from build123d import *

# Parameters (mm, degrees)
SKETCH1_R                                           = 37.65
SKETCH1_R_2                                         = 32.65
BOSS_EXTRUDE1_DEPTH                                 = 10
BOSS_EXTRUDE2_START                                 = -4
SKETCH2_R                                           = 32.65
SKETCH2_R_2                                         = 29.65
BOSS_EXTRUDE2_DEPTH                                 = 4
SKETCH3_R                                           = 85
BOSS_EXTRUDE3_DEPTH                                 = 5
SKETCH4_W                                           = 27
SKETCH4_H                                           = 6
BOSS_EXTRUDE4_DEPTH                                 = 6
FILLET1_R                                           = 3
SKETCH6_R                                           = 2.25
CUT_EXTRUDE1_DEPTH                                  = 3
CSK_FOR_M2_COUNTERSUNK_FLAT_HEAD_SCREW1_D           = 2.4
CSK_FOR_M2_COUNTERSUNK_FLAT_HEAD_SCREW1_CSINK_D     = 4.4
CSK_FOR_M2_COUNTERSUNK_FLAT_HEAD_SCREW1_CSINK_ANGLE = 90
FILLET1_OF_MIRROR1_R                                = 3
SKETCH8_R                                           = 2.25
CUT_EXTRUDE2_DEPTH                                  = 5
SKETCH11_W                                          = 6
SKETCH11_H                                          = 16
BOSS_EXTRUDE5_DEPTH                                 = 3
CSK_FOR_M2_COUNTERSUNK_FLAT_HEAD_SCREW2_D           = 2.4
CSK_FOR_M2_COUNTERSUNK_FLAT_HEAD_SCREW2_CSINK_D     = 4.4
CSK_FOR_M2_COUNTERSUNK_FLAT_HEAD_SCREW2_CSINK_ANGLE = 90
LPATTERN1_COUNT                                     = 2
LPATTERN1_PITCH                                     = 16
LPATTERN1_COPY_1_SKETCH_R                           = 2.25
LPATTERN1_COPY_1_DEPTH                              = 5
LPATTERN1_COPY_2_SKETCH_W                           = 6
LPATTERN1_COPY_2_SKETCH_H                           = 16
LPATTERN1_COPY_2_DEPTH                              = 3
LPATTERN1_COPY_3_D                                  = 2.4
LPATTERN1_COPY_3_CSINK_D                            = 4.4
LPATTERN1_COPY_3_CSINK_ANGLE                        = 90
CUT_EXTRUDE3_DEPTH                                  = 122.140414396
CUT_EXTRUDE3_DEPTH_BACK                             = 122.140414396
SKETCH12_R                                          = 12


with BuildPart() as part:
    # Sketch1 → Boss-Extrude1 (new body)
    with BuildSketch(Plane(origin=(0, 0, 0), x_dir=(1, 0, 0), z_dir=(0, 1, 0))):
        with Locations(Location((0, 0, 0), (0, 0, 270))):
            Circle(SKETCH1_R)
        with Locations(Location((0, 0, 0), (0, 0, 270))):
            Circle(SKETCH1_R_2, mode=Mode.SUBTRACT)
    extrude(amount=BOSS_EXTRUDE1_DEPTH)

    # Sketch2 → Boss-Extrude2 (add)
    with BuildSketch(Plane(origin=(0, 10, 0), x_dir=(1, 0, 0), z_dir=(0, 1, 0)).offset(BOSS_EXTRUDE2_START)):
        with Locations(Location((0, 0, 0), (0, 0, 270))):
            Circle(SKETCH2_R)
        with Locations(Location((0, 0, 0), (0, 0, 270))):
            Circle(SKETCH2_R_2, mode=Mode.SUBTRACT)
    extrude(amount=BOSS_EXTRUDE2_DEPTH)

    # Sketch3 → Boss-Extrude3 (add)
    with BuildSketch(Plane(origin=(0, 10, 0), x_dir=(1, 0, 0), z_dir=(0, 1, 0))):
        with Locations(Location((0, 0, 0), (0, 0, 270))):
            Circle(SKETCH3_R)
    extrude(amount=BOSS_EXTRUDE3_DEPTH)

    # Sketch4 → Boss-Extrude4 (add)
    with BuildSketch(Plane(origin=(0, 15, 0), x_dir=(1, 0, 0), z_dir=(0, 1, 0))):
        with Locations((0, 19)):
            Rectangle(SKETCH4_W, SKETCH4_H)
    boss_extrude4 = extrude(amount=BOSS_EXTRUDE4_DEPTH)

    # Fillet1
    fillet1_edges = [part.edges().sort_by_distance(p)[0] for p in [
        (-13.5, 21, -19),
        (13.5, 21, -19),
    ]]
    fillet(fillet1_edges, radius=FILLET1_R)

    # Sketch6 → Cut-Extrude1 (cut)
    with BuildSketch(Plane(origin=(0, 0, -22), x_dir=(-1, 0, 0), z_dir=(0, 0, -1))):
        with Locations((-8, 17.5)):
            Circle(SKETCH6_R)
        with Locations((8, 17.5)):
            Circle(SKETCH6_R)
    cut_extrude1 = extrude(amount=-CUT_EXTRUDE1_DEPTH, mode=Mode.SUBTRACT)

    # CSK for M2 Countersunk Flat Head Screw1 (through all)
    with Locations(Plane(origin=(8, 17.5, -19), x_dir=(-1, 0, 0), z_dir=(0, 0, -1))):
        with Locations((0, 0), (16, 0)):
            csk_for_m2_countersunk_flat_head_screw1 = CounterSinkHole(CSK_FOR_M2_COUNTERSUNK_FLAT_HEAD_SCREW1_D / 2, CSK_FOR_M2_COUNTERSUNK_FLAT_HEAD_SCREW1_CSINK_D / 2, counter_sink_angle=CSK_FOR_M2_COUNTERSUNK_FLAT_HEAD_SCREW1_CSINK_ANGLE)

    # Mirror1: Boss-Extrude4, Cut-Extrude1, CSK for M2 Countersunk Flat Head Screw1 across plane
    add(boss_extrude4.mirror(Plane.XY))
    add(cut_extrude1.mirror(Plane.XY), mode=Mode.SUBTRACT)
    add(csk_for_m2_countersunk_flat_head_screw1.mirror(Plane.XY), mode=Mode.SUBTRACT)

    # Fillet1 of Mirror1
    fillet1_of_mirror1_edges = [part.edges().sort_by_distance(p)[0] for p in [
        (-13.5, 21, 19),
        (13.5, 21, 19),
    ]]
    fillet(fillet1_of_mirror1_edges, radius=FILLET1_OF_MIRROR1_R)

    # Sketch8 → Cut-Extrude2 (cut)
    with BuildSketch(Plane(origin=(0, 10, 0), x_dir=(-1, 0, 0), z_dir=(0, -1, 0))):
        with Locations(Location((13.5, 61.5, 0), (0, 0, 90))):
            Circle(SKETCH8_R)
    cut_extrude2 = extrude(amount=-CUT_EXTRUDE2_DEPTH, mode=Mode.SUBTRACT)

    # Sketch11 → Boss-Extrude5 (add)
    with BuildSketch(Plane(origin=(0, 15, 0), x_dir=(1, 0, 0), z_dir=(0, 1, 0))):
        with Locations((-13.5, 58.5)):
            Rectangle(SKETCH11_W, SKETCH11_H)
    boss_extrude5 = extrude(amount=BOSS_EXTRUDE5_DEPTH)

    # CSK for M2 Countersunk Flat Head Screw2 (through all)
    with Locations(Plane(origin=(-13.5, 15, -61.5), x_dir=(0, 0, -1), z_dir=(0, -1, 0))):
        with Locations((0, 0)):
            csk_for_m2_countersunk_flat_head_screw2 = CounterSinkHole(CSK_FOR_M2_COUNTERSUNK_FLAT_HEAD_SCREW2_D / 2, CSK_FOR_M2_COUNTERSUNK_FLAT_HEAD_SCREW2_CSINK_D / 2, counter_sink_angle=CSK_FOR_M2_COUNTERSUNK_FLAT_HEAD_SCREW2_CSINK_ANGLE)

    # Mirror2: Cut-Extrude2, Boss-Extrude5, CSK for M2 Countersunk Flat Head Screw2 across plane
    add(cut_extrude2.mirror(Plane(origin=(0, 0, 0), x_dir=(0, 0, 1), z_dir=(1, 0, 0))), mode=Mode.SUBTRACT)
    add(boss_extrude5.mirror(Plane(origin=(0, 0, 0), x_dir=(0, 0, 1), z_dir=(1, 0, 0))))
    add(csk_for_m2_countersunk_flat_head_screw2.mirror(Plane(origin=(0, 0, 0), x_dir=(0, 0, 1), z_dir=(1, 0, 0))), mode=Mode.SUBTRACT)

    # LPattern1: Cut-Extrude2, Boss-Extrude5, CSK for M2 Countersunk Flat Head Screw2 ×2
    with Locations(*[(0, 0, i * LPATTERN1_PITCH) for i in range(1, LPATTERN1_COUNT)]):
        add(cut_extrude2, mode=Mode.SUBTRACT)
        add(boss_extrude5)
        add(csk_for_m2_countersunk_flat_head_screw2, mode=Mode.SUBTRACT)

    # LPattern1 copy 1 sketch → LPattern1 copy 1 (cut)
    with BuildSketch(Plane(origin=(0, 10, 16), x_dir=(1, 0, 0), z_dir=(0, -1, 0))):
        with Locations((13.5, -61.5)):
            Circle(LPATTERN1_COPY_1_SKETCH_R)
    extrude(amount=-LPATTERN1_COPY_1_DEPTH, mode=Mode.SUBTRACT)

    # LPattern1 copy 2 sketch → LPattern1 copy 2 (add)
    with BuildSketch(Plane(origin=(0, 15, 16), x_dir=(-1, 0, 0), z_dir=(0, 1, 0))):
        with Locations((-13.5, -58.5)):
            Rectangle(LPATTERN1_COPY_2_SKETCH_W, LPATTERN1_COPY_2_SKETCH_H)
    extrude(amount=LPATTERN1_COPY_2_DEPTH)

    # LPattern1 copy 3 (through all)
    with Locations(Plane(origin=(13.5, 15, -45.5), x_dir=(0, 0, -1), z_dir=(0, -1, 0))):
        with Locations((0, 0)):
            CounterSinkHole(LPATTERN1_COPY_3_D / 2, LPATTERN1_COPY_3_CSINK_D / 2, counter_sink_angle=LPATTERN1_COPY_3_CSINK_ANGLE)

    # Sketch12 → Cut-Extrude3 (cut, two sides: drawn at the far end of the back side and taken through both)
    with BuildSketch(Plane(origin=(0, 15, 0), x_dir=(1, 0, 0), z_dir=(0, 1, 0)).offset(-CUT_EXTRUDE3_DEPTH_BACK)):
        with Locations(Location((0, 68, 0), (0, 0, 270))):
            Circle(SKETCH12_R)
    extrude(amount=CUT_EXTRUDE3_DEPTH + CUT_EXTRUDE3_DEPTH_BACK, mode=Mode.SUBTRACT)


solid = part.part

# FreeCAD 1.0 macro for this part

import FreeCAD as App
import Part
import Sketcher


def edges_at(feature, points):
    """Names of the edges that pass closest to the given points."""
    edges = feature.Shape.Edges
    near = lambda p: min(range(len(edges)), key=lambda i: edges[i].distToShape(Part.Vertex(*p))[0])
    return sorted({f"Edge{near(p) + 1}" for p in points})


def add_polygon(sketch, points):
    """Adds a closed chain of lines whose ends are joined by coincident constraints."""
    first, n = sketch.GeometryCount, len(points)
    for a, b in zip(points, points[1:] + points[:1]):
        sketch.addGeometry(Part.LineSegment(App.Vector(*a, 0), App.Vector(*b, 0)), False)
    for i in range(n):
        sketch.addConstraint(Sketcher.Constraint("Coincident", first + i, 2, first + (i + 1) % n, 1))

doc = App.newDocument("Part")
body = doc.addObject("PartDesign::Body", "Body")

# Sketch on XZ plane
sketch1 = body.newObject("Sketcher::SketchObject", "Sketch")
sketch1.AttachmentSupport = (doc.getObject("XZ_Plane"), [""])
sketch1.MapMode = "FlatFace"
sketch1.addGeometry(Part.Circle(App.Vector(0, 0, 0), App.Vector(0, 0, 1), 38), False)
sketch1.addGeometry(Part.Circle(App.Vector(0, 0, 0), App.Vector(0, 0, 1), 33), False)
sketch1.addConstraint(Sketcher.Constraint("Coincident", 0, 3, -1, 1))
sketch1.addConstraint(Sketcher.Constraint("Coincident", 1, 3, -1, 1))
sketch1.addConstraint(Sketcher.Constraint("Diameter", 0, 75.3))
sketch1.addConstraint(Sketcher.Constraint("Diameter", 1, 65.3))
pad1 = body.newObject("PartDesign::Pad", "Pad")
pad1.Profile = sketch1
pad1.Length = 10
pad1.Reversed = True

# Sketch on XZ plane
sketch2 = body.newObject("Sketcher::SketchObject", "Sketch001")
sketch2.AttachmentSupport = (doc.getObject("XZ_Plane"), [""])
sketch2.MapMode = "FlatFace"
sketch2.AttachmentOffset = App.Placement(App.Vector(0, 0, -6), App.Rotation())
sketch2.addGeometry(Part.Circle(App.Vector(0, 0, 0), App.Vector(0, 0, 1), 33), False)
sketch2.addGeometry(Part.Circle(App.Vector(0, 0, 0), App.Vector(0, 0, 1), 30), False)
sketch2.addConstraint(Sketcher.Constraint("Coincident", 0, 3, -1, 1))
sketch2.addConstraint(Sketcher.Constraint("Coincident", 1, 3, -1, 1))
sketch2.addConstraint(Sketcher.Constraint("Diameter", 0, 65.3))
sketch2.addConstraint(Sketcher.Constraint("Diameter", 1, 59.3))
pad2 = body.newObject("PartDesign::Pad", "Pad001")
pad2.Profile = sketch2
pad2.Length = 4
pad2.Reversed = True

# Sketch on XZ plane
sketch3 = body.newObject("Sketcher::SketchObject", "Sketch002")
sketch3.AttachmentSupport = (doc.getObject("XZ_Plane"), [""])
sketch3.MapMode = "FlatFace"
sketch3.AttachmentOffset = App.Placement(App.Vector(0, 0, -10), App.Rotation())
sketch3.addGeometry(Part.Circle(App.Vector(0, 0, 0), App.Vector(0, 0, 1), 85), False)
sketch3.addConstraint(Sketcher.Constraint("Coincident", 0, 3, -1, 1))
sketch3.addConstraint(Sketcher.Constraint("Diameter", 0, 170.0))
pad3 = body.newObject("PartDesign::Pad", "Pad002")
pad3.Profile = sketch3
pad3.Length = 5
pad3.Reversed = True

# Sketch on XZ plane
sketch4 = body.newObject("Sketcher::SketchObject", "Sketch003")
sketch4.AttachmentSupport = (doc.getObject("XZ_Plane"), [""])
sketch4.MapMode = "FlatFace"
sketch4.AttachmentOffset = App.Placement(App.Vector(0, 0, -15), App.Rotation())
add_polygon(sketch4, [(-14, -22), (-14, -16), (14, -16), (14, -22)])  # lines 0-3
sketch4.addConstraint(Sketcher.Constraint("Vertical", 0))
sketch4.addConstraint(Sketcher.Constraint("Horizontal", 1))
sketch4.addConstraint(Sketcher.Constraint("Vertical", 2))
sketch4.addConstraint(Sketcher.Constraint("Horizontal", 3))
sketch4.addConstraint(Sketcher.Constraint("DistanceX", 1, 1, 1, 2, 27.0))
sketch4.addConstraint(Sketcher.Constraint("DistanceY", 0, 1, 0, 2, 6.0))
sketch4.addConstraint(Sketcher.Constraint("DistanceY", 0, 2, -1, 1, 16.0))
sketch4.addConstraint(Sketcher.Constraint("DistanceX", 0, 2, -1, 1, 13.5))
pad4 = body.newObject("PartDesign::Pad", "Pad003")
pad4.Profile = sketch4
pad4.Length = 6
pad4.Reversed = True
doc.recompute()

fillet = body.newObject("PartDesign::Fillet", "Fillet")
fillet.Base = (pad4, edges_at(pad4, [(-13.5, 21, -19), (13.5, 21, -19)]))
fillet.Radius = 3

# Sketch on XY plane
sketch5 = body.newObject("Sketcher::SketchObject", "Sketch004")
sketch5.AttachmentSupport = (doc.getObject("XY_Plane"), [""])
sketch5.MapMode = "FlatFace"
sketch5.AttachmentOffset = App.Placement(App.Vector(0, 0, -22), App.Rotation())
sketch5.addGeometry(Part.Circle(App.Vector(8, 17.5, 0), App.Vector(0, 0, 1), 2.2), False)
sketch5.addGeometry(Part.Circle(App.Vector(-8, 17.5, 0), App.Vector(0, 0, 1), 2.2), False)
sketch5.addConstraint(Sketcher.Constraint("Equal", 0, 1))
sketch5.addConstraint(Sketcher.Constraint("Symmetric", 0, 3, 1, 3, -2))
sketch5.addConstraint(Sketcher.Constraint("Diameter", 0, 4.5))
sketch5.addConstraint(Sketcher.Constraint("DistanceX", -1, 1, 0, 3, 8.0))
sketch5.addConstraint(Sketcher.Constraint("DistanceY", -1, 1, 0, 3, 17.5))
pocket1 = body.newObject("PartDesign::Pocket", "Pocket")
pocket1.Profile = sketch5
pocket1.Length = 3
pocket1.Reversed = True

# Sketch on XY plane
sketch6 = body.newObject("Sketcher::SketchObject", "Sketch005")
sketch6.AttachmentSupport = (doc.getObject("XY_Plane"), [""])
sketch6.MapMode = "FlatFace"
sketch6.AttachmentOffset = App.Placement(App.Vector(0, 0, -19), App.Rotation())
sketch6.addGeometry(Part.Circle(App.Vector(8, 17.5, 0), App.Vector(0, 0, 1), 1.2), False)
sketch6.addGeometry(Part.Circle(App.Vector(-8, 17.5, 0), App.Vector(0, 0, 1), 1.2), False)
sketch6.addConstraint(Sketcher.Constraint("Equal", 0, 1))
sketch6.addConstraint(Sketcher.Constraint("Symmetric", 0, 3, 1, 3, -2))
sketch6.addConstraint(Sketcher.Constraint("Diameter", 0, 2.4))
sketch6.addConstraint(Sketcher.Constraint("DistanceX", -1, 1, 0, 3, 8.0))
sketch6.addConstraint(Sketcher.Constraint("DistanceY", -1, 1, 0, 3, 17.5))
doc.recompute()
hole = body.newObject("PartDesign::Hole", "Hole")
hole.Profile = sketch6
hole.ThreadType = "None"
hole.Diameter = 2.4
hole.DepthType = "ThroughAll"
hole.HoleCutType = "Countersink"
hole.HoleCutDiameter = 4.4
hole.HoleCutCountersinkAngle = 90
hole.Reversed = True
doc.recompute()

mirrored = body.newObject("PartDesign::Mirrored", "Mirrored")
mirrored.Originals = [pad4, pocket1, hole]
mirrored.MirrorPlane = (doc.getObject("XY_Plane"), [""])
body.Tip = mirrored
doc.recompute()

fillet2 = body.newObject("PartDesign::Fillet", "Fillet001")
fillet2.Base = (mirrored, edges_at(mirrored, [(-13.5, 21, 19), (13.5, 21, 19)]))
fillet2.Radius = 3

# Sketch on XZ plane
sketch7 = body.newObject("Sketcher::SketchObject", "Sketch006")
sketch7.AttachmentSupport = (doc.getObject("XZ_Plane"), [""])
sketch7.MapMode = "FlatFace"
sketch7.AttachmentOffset = App.Placement(App.Vector(0, 0, -10), App.Rotation())
sketch7.addGeometry(Part.Circle(App.Vector(-13.5, -61.5, 0), App.Vector(0, 0, 1), 2.2), False)
sketch7.addConstraint(Sketcher.Constraint("Diameter", 0, 4.5))
sketch7.addConstraint(Sketcher.Constraint("DistanceX", 0, 3, -1, 1, 13.5))
sketch7.addConstraint(Sketcher.Constraint("DistanceY", 0, 3, -1, 1, 61.5))
pocket2 = body.newObject("PartDesign::Pocket", "Pocket001")
pocket2.Profile = sketch7
pocket2.Length = 5

# Sketch on XZ plane
sketch8 = body.newObject("Sketcher::SketchObject", "Sketch007")
sketch8.AttachmentSupport = (doc.getObject("XZ_Plane"), [""])
sketch8.MapMode = "FlatFace"
sketch8.AttachmentOffset = App.Placement(App.Vector(0, 0, -15), App.Rotation())
add_polygon(sketch8, [(-16, -66), (-16, -50), (-10, -50), (-10, -66)])  # lines 0-3
sketch8.addConstraint(Sketcher.Constraint("Vertical", 0))
sketch8.addConstraint(Sketcher.Constraint("Horizontal", 1))
sketch8.addConstraint(Sketcher.Constraint("Vertical", 2))
sketch8.addConstraint(Sketcher.Constraint("Horizontal", 3))
sketch8.addConstraint(Sketcher.Constraint("DistanceX", 1, 1, 1, 2, 6.0))
sketch8.addConstraint(Sketcher.Constraint("DistanceY", 0, 1, 0, 2, 16.0))
sketch8.addConstraint(Sketcher.Constraint("DistanceX", 0, 2, -1, 1, 16.5))
sketch8.addConstraint(Sketcher.Constraint("DistanceY", 0, 2, -1, 1, 50.5))
pad5 = body.newObject("PartDesign::Pad", "Pad004")
pad5.Profile = sketch8
pad5.Length = 3
pad5.Reversed = True

# Sketch on XZ plane
sketch9 = body.newObject("Sketcher::SketchObject", "Sketch008")
sketch9.AttachmentSupport = (doc.getObject("XZ_Plane"), [""])
sketch9.MapMode = "FlatFace"
sketch9.AttachmentOffset = App.Placement(App.Vector(0, 0, -15), App.Rotation())
sketch9.addGeometry(Part.Circle(App.Vector(-13.5, -61.5, 0), App.Vector(0, 0, 1), 1.2), False)
sketch9.addConstraint(Sketcher.Constraint("Diameter", 0, 2.4))
sketch9.addConstraint(Sketcher.Constraint("DistanceX", 0, 3, -1, 1, 13.5))
sketch9.addConstraint(Sketcher.Constraint("DistanceY", 0, 3, -1, 1, 61.5))
doc.recompute()
hole2 = body.newObject("PartDesign::Hole", "Hole001")
hole2.Profile = sketch9
hole2.ThreadType = "None"
hole2.Diameter = 2.4
hole2.DepthType = "ThroughAll"
hole2.HoleCutType = "Countersink"
hole2.HoleCutDiameter = 4.4
hole2.HoleCutCountersinkAngle = 90
doc.recompute()

mirrored2 = body.newObject("PartDesign::Mirrored", "Mirrored001")
mirrored2.Originals = [pocket2, pad5, hole2]
mirrored2.MirrorPlane = (doc.getObject("YZ_Plane"), [""])
body.Tip = mirrored2
doc.recompute()

linearpattern = body.newObject("PartDesign::LinearPattern", "LinearPattern")
linearpattern.Originals = [pocket2, pad5, hole2]
linearpattern.Direction = (doc.getObject("Z_Axis"), [""])
linearpattern.Mode = "offset"
linearpattern.Offset = 16
linearpattern.Occurrences = 2
body.Tip = linearpattern

# Sketch on XZ plane
sketch10 = body.newObject("Sketcher::SketchObject", "Sketch009")
sketch10.AttachmentSupport = (doc.getObject("XZ_Plane"), [""])
sketch10.MapMode = "FlatFace"
sketch10.AttachmentOffset = App.Placement(App.Vector(0, 0, -10), App.Rotation())
sketch10.addGeometry(Part.Circle(App.Vector(13.5, -45.5, 0), App.Vector(0, 0, 1), 2.2), False)
sketch10.addConstraint(Sketcher.Constraint("Diameter", 0, 4.5))
sketch10.addConstraint(Sketcher.Constraint("DistanceX", -1, 1, 0, 3, 13.5))
sketch10.addConstraint(Sketcher.Constraint("DistanceY", 0, 3, -1, 1, 45.5))
pocket3 = body.newObject("PartDesign::Pocket", "Pocket002")
pocket3.Profile = sketch10
pocket3.Length = 5

# Sketch on XZ plane
sketch11 = body.newObject("Sketcher::SketchObject", "Sketch010")
sketch11.AttachmentSupport = (doc.getObject("XZ_Plane"), [""])
sketch11.MapMode = "FlatFace"
sketch11.AttachmentOffset = App.Placement(App.Vector(0, 0, -15), App.Rotation())
add_polygon(sketch11, [(16, -34), (16, -50), (10, -50), (10, -34)])  # lines 0-3
sketch11.addConstraint(Sketcher.Constraint("Vertical", 0))
sketch11.addConstraint(Sketcher.Constraint("Horizontal", 1))
sketch11.addConstraint(Sketcher.Constraint("Vertical", 2))
sketch11.addConstraint(Sketcher.Constraint("Horizontal", 3))
sketch11.addConstraint(Sketcher.Constraint("DistanceX", 1, 2, 1, 1, 6.0))
sketch11.addConstraint(Sketcher.Constraint("DistanceY", 0, 2, 0, 1, 16.0))
sketch11.addConstraint(Sketcher.Constraint("DistanceX", -1, 1, 0, 2, 16.5))
sketch11.addConstraint(Sketcher.Constraint("DistanceY", 0, 2, -1, 1, 50.5))
pad6 = body.newObject("PartDesign::Pad", "Pad005")
pad6.Profile = sketch11
pad6.Length = 3
pad6.Reversed = True

# Sketch on XZ plane
sketch12 = body.newObject("Sketcher::SketchObject", "Sketch011")
sketch12.AttachmentSupport = (doc.getObject("XZ_Plane"), [""])
sketch12.MapMode = "FlatFace"
sketch12.AttachmentOffset = App.Placement(App.Vector(0, 0, -15), App.Rotation())
sketch12.addGeometry(Part.Circle(App.Vector(13.5, -45.5, 0), App.Vector(0, 0, 1), 1.2), False)
sketch12.addConstraint(Sketcher.Constraint("Diameter", 0, 2.4))
sketch12.addConstraint(Sketcher.Constraint("DistanceX", -1, 1, 0, 3, 13.5))
sketch12.addConstraint(Sketcher.Constraint("DistanceY", 0, 3, -1, 1, 45.5))
doc.recompute()
hole3 = body.newObject("PartDesign::Hole", "Hole002")
hole3.Profile = sketch12
hole3.ThreadType = "None"
hole3.Diameter = 2.4
hole3.DepthType = "ThroughAll"
hole3.HoleCutType = "Countersink"
hole3.HoleCutDiameter = 4.4
hole3.HoleCutCountersinkAngle = 90

# Sketch on XZ plane
sketch13 = body.newObject("Sketcher::SketchObject", "Sketch012")
sketch13.AttachmentSupport = (doc.getObject("XZ_Plane"), [""])
sketch13.MapMode = "FlatFace"
sketch13.AttachmentOffset = App.Placement(App.Vector(0, 0, -15), App.Rotation())
sketch13.addGeometry(Part.Circle(App.Vector(0, -68, 0), App.Vector(0, 0, 1), 12), False)
sketch13.addConstraint(Sketcher.Constraint("PointOnObject", 0, 3, -2))
sketch13.addConstraint(Sketcher.Constraint("Diameter", 0, 24.0))
sketch13.addConstraint(Sketcher.Constraint("DistanceY", 0, 3, -1, 1, 68.0))
pocket4 = body.newObject("PartDesign::Pocket", "Pocket003")
pocket4.Profile = sketch13
pocket4.Type = "ThroughAll"
pocket4.Midplane = True

doc.recompute()
